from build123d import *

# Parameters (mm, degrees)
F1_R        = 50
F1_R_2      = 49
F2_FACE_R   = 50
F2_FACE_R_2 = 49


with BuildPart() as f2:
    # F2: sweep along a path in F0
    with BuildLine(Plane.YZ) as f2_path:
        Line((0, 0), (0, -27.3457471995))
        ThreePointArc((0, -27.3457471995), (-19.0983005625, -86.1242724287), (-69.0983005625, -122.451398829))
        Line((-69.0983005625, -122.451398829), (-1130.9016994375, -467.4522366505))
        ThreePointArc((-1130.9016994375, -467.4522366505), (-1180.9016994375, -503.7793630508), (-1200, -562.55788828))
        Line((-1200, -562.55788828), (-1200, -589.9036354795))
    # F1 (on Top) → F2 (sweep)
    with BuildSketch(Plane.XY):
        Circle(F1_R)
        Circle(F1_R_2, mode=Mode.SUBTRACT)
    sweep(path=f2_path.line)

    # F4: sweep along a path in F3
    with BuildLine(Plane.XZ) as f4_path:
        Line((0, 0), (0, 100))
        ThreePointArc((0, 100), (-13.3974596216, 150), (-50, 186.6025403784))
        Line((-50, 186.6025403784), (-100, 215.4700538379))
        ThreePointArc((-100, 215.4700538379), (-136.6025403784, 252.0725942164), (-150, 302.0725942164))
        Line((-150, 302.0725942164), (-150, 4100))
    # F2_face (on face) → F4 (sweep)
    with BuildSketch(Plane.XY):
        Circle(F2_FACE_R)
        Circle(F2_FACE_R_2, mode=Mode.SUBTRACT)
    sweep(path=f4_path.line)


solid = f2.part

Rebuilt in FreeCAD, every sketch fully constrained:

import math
import FreeCAD as App
import Part
import Sketcher

V = App.Vector
Q = App.Units.Quantity

doc = App.newDocument("Part")
body = doc.addObject("PartDesign::Body", "Body")

sketch1 = doc.addObject("Sketcher::SketchObject", "Sketch")
body.addObject(sketch1)
sketch1.AttachmentSupport = (doc.XY_Plane, [""])
sketch1.MapMode = "FlatFace"
sketch1.addGeometry(Part.Circle(V(0, 0, 0), V(0, 0, 1), 50), False)
sketch1.addGeometry(Part.Circle(V(0, 0, 0), V(0, 0, 1), 49), False)
sketch1.addConstraint(Sketcher.Constraint("Coincident", 0, 3, -1, 1))
sketch1.addConstraint(Sketcher.Constraint("Coincident", 1, 3, -1, 1))
sketch1.addConstraint(Sketcher.Constraint("Diameter", 0, Q("100 mm")))
sketch1.addConstraint(Sketcher.Constraint("Diameter", 1, Q("98 mm")))

sketch2 = doc.addObject("Sketcher::SketchObject", "Sketch001")
body.addObject(sketch2)
sketch2.AttachmentSupport = (doc.YZ_Plane, [""])
sketch2.MapMode = "FlatFace"
sketch2.addGeometry(Part.LineSegment(V(0, 0, 0), V(0, -27, 0)), False)
sketch2.addGeometry(Part.ArcOfCircle(Part.Circle(V(-100, -27, 0), V(0, 0, 1), 100), math.radians(-72), math.radians(0)), False)
sketch2.addGeometry(Part.LineSegment(V(-69, -122, 0), V(-1131, -467, 0)), False)
sketch2.addGeometry(Part.ArcOfCircle(Part.Circle(V(-1100, -563, 0), V(0, 0, 1), 100), math.radians(108), math.radians(180)), False)
sketch2.addGeometry(Part.LineSegment(V(-1200, -563, 0), V(-1200, -590, 0)), False)
sketch2.addConstraint(Sketcher.Constraint("Tangent", 0, 2, 1, 2))
sketch2.addConstraint(Sketcher.Constraint("Tangent", 1, 1, 2, 1))
sketch2.addConstraint(Sketcher.Constraint("Tangent", 2, 2, 3, 1))
sketch2.addConstraint(Sketcher.Constraint("Tangent", 3, 2, 4, 1))
sketch2.addConstraint(Sketcher.Constraint("Vertical", 0))
sketch2.addConstraint(Sketcher.Constraint("Vertical", 4))
sketch2.addConstraint(Sketcher.Constraint("Coincident", 0, 1, -1, 1))
sketch2.addConstraint(Sketcher.Constraint("Equal", 1, 3))
sketch2.addConstraint(Sketcher.Constraint("Equal", 0, 4))
sketch2.addConstraint(Sketcher.Constraint("Radius", 1, Q("100 mm")))
sketch2.addConstraint(Sketcher.Constraint("Angle", 2, Q("-162 deg")))
sketch2.addConstraint(Sketcher.Constraint("DistanceX", 3, 3, -1, 1, Q("1100 mm")))
sketch2.addConstraint(Sketcher.Constraint("DistanceY", 1, 1, -1, 1, Q("122.451399 mm")))
doc.recompute()

additivepipe = doc.addObject("PartDesign::AdditivePipe", "AdditivePipe")
body.addObject(additivepipe)
additivepipe.Profile = sketch1
additivepipe.Spine = (sketch2, ["Edge1", "Edge2", "Edge3", "Edge4", "Edge5"])

sketch3 = doc.addObject("Sketcher::SketchObject", "Sketch002")
body.addObject(sketch3)
sketch3.AttachmentSupport = (doc.XY_Plane, [""])
sketch3.MapMode = "FlatFace"
sketch3.addGeometry(Part.Circle(V(0, 0, 0), V(0, 0, 1), 50), False)
sketch3.addGeometry(Part.Circle(V(0, 0, 0), V(0, 0, 1), 49), False)
sketch3.addConstraint(Sketcher.Constraint("Coincident", 0, 3, -1, 1))
sketch3.addConstraint(Sketcher.Constraint("Coincident", 1, 3, -1, 1))
sketch3.addConstraint(Sketcher.Constraint("Diameter", 0, Q("100 mm")))
sketch3.addConstraint(Sketcher.Constraint("Diameter", 1, Q("98 mm")))

sketch4 = doc.addObject("Sketcher::SketchObject", "Sketch003")
body.addObject(sketch4)
sketch4.AttachmentSupport = (doc.XZ_Plane, [""])
sketch4.MapMode = "FlatFace"
sketch4.addGeometry(Part.LineSegment(V(0, 0, 0), V(0, 100, 0)), False)
sketch4.addGeometry(Part.ArcOfCircle(Part.Circle(V(-100, 100, 0), V(0, 0, 1), 100), math.radians(0), math.radians(60)), False)
sketch4.addGeometry(Part.LineSegment(V(-50, 187, 0), V(-100, 215, 0)), False)
sketch4.addGeometry(Part.ArcOfCircle(Part.Circle(V(-50, 302, 0), V(0, 0, 1), 100), math.radians(-180), math.radians(-120)), False)
sketch4.addGeometry(Part.LineSegment(V(-150, 302, 0), V(-150, 4100, 0)), False)
sketch4.addConstraint(Sketcher.Constraint("Tangent", 0, 2, 1, 1))
sketch4.addConstraint(Sketcher.Constraint("Tangent", 1, 2, 2, 1))
sketch4.addConstraint(Sketcher.Constraint("Tangent", 2, 2, 3, 2))
sketch4.addConstraint(Sketcher.Constraint("Tangent", 3, 1, 4, 1))
sketch4.addConstraint(Sketcher.Constraint("Vertical", 0))
sketch4.addConstraint(Sketcher.Constraint("Vertical", 4))
sketch4.addConstraint(Sketcher.Constraint("Coincident", 0, 1, -1, 1))
sketch4.addConstraint(Sketcher.Constraint("Equal", 1, 3))
sketch4.addConstraint(Sketcher.Constraint("Vertical", 3, 3, 1, 2))
sketch4.addConstraint(Sketcher.Constraint("Radius", 1, Q("100 mm")))
sketch4.addConstraint(Sketcher.Constraint("DistanceY", 0, 1, 0, 2, Q("100 mm")))
sketch4.addConstraint(Sketcher.Constraint("Angle", 2, Q("150 deg")))
sketch4.addConstraint(Sketcher.Constraint("DistanceY", -1, 1, 4, 2, Q("4100 mm")))
doc.recompute()

additivepipe2 = doc.addObject("PartDesign::AdditivePipe", "AdditivePipe001")
body.addObject(additivepipe2)
additivepipe2.Profile = sketch3
additivepipe2.Spine = (sketch4, ["Edge1", "Edge2", "Edge3", "Edge4", "Edge5"])

doc.recompute()
